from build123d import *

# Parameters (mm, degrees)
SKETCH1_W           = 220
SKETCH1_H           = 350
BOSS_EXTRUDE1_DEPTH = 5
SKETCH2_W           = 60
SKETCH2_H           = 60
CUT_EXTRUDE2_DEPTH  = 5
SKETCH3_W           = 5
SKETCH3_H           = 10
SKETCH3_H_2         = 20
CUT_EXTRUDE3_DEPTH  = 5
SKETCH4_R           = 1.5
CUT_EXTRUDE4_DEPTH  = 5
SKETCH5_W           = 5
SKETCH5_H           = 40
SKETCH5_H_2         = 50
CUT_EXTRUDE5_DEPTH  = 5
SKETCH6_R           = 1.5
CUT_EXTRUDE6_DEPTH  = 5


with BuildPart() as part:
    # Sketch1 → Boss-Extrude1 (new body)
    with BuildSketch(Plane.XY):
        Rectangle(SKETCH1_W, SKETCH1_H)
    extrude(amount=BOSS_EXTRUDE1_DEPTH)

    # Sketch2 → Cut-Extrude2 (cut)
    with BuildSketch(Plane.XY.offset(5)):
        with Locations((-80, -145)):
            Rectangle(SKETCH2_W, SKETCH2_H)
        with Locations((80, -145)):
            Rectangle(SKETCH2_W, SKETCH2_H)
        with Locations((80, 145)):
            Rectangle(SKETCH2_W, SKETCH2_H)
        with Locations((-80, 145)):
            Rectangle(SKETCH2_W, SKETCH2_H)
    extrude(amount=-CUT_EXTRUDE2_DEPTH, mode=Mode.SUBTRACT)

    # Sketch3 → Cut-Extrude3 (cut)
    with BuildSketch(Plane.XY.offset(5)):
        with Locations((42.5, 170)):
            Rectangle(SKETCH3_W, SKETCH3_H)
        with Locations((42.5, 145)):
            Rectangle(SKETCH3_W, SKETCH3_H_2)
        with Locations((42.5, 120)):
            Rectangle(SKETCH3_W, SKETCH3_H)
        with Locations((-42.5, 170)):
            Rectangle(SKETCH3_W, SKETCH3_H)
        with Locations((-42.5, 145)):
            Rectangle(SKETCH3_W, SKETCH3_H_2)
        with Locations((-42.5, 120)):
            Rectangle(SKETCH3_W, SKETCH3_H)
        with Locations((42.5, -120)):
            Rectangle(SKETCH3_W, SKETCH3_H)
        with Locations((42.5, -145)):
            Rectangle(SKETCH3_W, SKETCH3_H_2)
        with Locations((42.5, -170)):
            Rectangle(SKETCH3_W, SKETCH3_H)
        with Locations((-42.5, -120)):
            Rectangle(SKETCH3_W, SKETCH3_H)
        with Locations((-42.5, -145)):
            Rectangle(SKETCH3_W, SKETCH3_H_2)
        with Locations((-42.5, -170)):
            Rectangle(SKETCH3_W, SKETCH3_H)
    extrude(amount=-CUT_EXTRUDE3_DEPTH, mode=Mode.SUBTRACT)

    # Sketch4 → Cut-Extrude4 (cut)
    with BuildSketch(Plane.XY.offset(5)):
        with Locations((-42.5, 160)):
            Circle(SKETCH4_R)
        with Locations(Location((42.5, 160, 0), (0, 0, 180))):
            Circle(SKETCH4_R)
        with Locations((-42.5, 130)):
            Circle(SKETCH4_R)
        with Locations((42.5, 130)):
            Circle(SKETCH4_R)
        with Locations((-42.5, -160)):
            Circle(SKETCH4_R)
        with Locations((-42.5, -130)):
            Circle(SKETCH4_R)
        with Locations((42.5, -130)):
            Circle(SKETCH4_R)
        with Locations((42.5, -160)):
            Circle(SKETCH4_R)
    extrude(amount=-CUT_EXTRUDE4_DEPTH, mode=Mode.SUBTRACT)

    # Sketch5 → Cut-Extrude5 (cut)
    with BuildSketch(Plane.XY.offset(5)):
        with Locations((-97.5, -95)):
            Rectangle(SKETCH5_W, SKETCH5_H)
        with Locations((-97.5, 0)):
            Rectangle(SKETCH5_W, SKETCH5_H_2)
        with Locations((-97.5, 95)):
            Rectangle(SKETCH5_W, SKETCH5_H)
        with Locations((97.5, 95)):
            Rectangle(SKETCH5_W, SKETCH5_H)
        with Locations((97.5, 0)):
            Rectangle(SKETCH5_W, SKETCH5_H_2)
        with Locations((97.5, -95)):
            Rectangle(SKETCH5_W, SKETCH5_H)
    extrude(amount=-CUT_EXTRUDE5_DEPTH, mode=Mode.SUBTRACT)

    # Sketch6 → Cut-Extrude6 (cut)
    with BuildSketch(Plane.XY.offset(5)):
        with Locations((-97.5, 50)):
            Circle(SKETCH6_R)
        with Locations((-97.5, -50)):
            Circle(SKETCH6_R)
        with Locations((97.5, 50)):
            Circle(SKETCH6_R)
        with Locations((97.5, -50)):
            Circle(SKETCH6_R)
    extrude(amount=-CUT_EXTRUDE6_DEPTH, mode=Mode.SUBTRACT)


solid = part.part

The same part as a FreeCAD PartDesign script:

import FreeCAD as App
import Part
import Sketcher

V = App.Vector
Q = App.Units.Quantity


def add_polygon(sketch, points):
    """Adds a closed chain of lines whose ends are joined by coincident constraints."""
    first, n = sketch.GeometryCount, len(points)
    for a, b in zip(points, points[1:] + points[:1]):
        sketch.addGeometry(Part.LineSegment(App.Vector(*a, 0), App.Vector(*b, 0)), False)
    for i in range(n):
        sketch.addConstraint(Sketcher.Constraint("Coincident", first + i, 2, first + (i + 1) % n, 1))

doc = App.newDocument("Part")
body = doc.addObject("PartDesign::Body", "Body")

# Sketch on XY plane
sketch1 = body.newObject("Sketcher::SketchObject", "Sketch")
sketch1.AttachmentSupport = (doc.getObject("XY_Plane"), [""])
sketch1.MapMode = "FlatFace"
add_polygon(sketch1, [(-110, 175), (-110, -175), (110, -175), (110, 175)])  # lines 0-3
sketch1.addConstraint([
    Sketcher.Constraint("Vertical", 0),
    Sketcher.Constraint("Horizontal", 1),
    Sketcher.Constraint("Vertical", 2),
    Sketcher.Constraint("Horizontal", 3),
    Sketcher.Constraint("Symmetric", 0, 2, 2, 2, -1, 1),
    Sketcher.Constraint("DistanceX", 1, 1, 1, 2, Q("220 mm")),
    Sketcher.Constraint("DistanceY", 0, 2, 0, 1, Q("350 mm")),
])
pad1 = body.newObject("PartDesign::Pad", "Pad")
pad1.Profile = sketch1
pad1.Length = 5

# Sketch on XY plane
sketch2 = body.newObject("Sketcher::SketchObject", "Sketch001")
sketch2.AttachmentSupport = (doc.getObject("XY_Plane"), [""])
sketch2.MapMode = "FlatFace"
sketch2.AttachmentOffset = App.Placement(V(0, 0, 5), App.Rotation())
add_polygon(sketch2, [(-110, -115), (-110, -175), (-50, -175), (-50, -115)])  # lines 0-3
add_polygon(sketch2, [(50, -115), (50, -175), (110, -175), (110, -115)])  # lines 4-7
add_polygon(sketch2, [(50, 175), (50, 115), (110, 115), (110, 175)])  # lines 8-11
add_polygon(sketch2, [(-110, 175), (-110, 115), (-50, 115), (-50, 175)])  # lines 12-15
sketch2.addConstraint([
    Sketcher.Constraint("Vertical", 0),
    Sketcher.Constraint("Horizontal", 1),
    Sketcher.Constraint("Vertical", 2),
    Sketcher.Constraint("Horizontal", 3),
    Sketcher.Constraint("Vertical", 4),
    Sketcher.Constraint("Horizontal", 5),
    Sketcher.Constraint("Vertical", 6),
    Sketcher.Constraint("Horizontal", 7),
    Sketcher.Constraint("Vertical", 8),
    Sketcher.Constraint("Horizontal", 9),
    Sketcher.Constraint("Vertical", 10),
    Sketcher.Constraint("Horizontal", 11),
    Sketcher.Constraint("Vertical", 12),
    Sketcher.Constraint("Horizontal", 13),
    Sketcher.Constraint("Vertical", 14),
    Sketcher.Constraint("Horizontal", 15),
    Sketcher.Constraint("Symmetric", 2, 2, 8, 2, -1, 1),
    Sketcher.Constraint("Symmetric", 0, 2, 10, 2, -1, 1),
    Sketcher.Constraint("Symmetric", 6, 2, 12, 2, -1, 1),
    Sketcher.Constraint("Symmetric", 4, 2, 14, 2, -1, 1),
    Sketcher.Constraint("Symmetric", 1, 2, 4, 2, -2),
    Sketcher.Constraint("Symmetric", 3, 2, 6, 2, -2),
    Sketcher.Constraint("Equal", 15, 0),
    Sketcher.Constraint("DistanceX", 1, 1, 1, 2, Q("60 mm")),
    Sketcher.Constraint("DistanceX", 0, 2, -1, 1, Q("110 mm")),
    Sketcher.Constraint("DistanceY", 0, 2, -1, 1, Q("175 mm")),
])
pocket1 = body.newObject("PartDesign::Pocket", "Pocket")
pocket1.Profile = sketch2
pocket1.Length = 5

# Sketch on XY plane
sketch3 = body.newObject("Sketcher::SketchObject", "Sketch002")
sketch3.AttachmentSupport = (doc.getObject("XY_Plane"), [""])
sketch3.MapMode = "FlatFace"
sketch3.AttachmentOffset = App.Placement(V(0, 0, 5), App.Rotation())
add_polygon(sketch3, [(40, 175), (40, 165), (45, 165), (45, 175)])  # lines 0-3
add_polygon(sketch3, [(40, 155), (40, 135), (45, 135), (45, 155)])  # lines 4-7
add_polygon(sketch3, [(40, 125), (40, 115), (45, 115), (45, 125)])  # lines 8-11
add_polygon(sketch3, [(-45, 175), (-45, 165), (-40, 165), (-40, 175)])  # lines 12-15
add_polygon(sketch3, [(-45, 155), (-45, 135), (-40, 135), (-40, 155)])  # lines 16-19
add_polygon(sketch3, [(-45, 125), (-45, 115), (-40, 115), (-40, 125)])  # lines 20-23
add_polygon(sketch3, [(40, -115), (40, -125), (45, -125), (45, -115)])  # lines 24-27
add_polygon(sketch3, [(40, -135), (40, -155), (45, -155), (45, -135)])  # lines 28-31
add_polygon(sketch3, [(40, -165), (40, -175), (45, -175), (45, -165)])  # lines 32-35
add_polygon(sketch3, [(-45, -115), (-45, -125), (-40, -125), (-40, -115)])  # lines 36-39
add_polygon(sketch3, [(-45, -135), (-45, -155), (-40, -155), (-40, -135)])  # lines 40-43
add_polygon(sketch3, [(-45, -165), (-45, -175), (-40, -175), (-40, -165)])  # lines 44-47
sketch3.addConstraint([
    Sketcher.Constraint("Vertical", 0),
    Sketcher.Constraint("Horizontal", 1),
    Sketcher.Constraint("Vertical", 2),
    Sketcher.Constraint("Horizontal", 3),
    Sketcher.Constraint("Vertical", 4),
    Sketcher.Constraint("Horizontal", 5),
    Sketcher.Constraint("Vertical", 6),
    Sketcher.Constraint("Horizontal", 7),
    Sketcher.Constraint("Vertical", 8),
    Sketcher.Constraint("Horizontal", 9),
    Sketcher.Constraint("Vertical", 10),
    Sketcher.Constraint("Horizontal", 11),
    Sketcher.Constraint("Vertical", 12),
    Sketcher.Constraint("Horizontal", 13),
    Sketcher.Constraint("Vertical", 14),
    Sketcher.Constraint("Horizontal", 15),
    Sketcher.Constraint("Vertical", 16),
    Sketcher.Constraint("Horizontal", 17),
    Sketcher.Constraint("Vertical", 18),
    Sketcher.Constraint("Horizontal", 19),
    Sketcher.Constraint("Vertical", 20),
    Sketcher.Constraint("Horizontal", 21),
    Sketcher.Constraint("Vertical", 22),
    Sketcher.Constraint("Horizontal", 23),
    Sketcher.Constraint("Vertical", 24),
    Sketcher.Constraint("Horizontal", 25),
    Sketcher.Constraint("Vertical", 26),
    Sketcher.Constraint("Horizontal", 27),
    Sketcher.Constraint("Vertical", 28),
    Sketcher.Constraint("Horizontal", 29),
    Sketcher.Constraint("Vertical", 30),
    Sketcher.Constraint("Horizontal", 31),
    Sketcher.Constraint("Vertical", 32),
    Sketcher.Constraint("Horizontal", 33),
    Sketcher.Constraint("Vertical", 34),
    Sketcher.Constraint("Horizontal", 35),
    Sketcher.Constraint("Vertical", 36),
    Sketcher.Constraint("Horizontal", 37),
    Sketcher.Constraint("Vertical", 38),
    Sketcher.Constraint("Horizontal", 39),
    Sketcher.Constraint("Vertical", 40),
    Sketcher.Constraint("Horizontal", 41),
    Sketcher.Constraint("Vertical", 42),
    Sketcher.Constraint("Horizontal", 43),
    Sketcher.Constraint("Vertical", 44),
    Sketcher.Constraint("Horizontal", 45),
    Sketcher.Constraint("Vertical", 46),
    Sketcher.Constraint("Horizontal", 47),
    Sketcher.Constraint("Symmetric", 22, 2, 24, 2, -1, 1),
    Sketcher.Constraint("Symmetric", 20, 2, 26, 2, -1, 1),
    Sketcher.Constraint("Symmetric", 18, 2, 28, 2, -1, 1),
    Sketcher.Constraint("Symmetric", 16, 2, 30, 2, -1, 1),
    Sketcher.Constraint("Symmetric", 14, 2, 32, 2, -1, 1),
    Sketcher.Constraint("Symmetric", 12, 2, 34, 2, -1, 1),
    Sketcher.Constraint("Symmetric", 10, 2, 36, 2, -1, 1),
    Sketcher.Constraint("Symmetric", 8, 2, 38, 2, -1, 1),
    Sketcher.Constraint("Symmetric", 6, 2, 40, 2, -1, 1),
    Sketcher.Constraint("Symmetric", 4, 2, 42, 2, -1, 1),
    Sketcher.Constraint("Symmetric", 2, 2, 44, 2, -1, 1),
    Sketcher.Constraint("Symmetric", 0, 2, 46, 2, -1, 1),
    Sketcher.Constraint("Symmetric", 1, 2, 12, 2, -2),
    Sketcher.Constraint("Symmetric", 3, 2, 14, 2, -2),
    Sketcher.Constraint("Symmetric", 5, 2, 16, 2, -2),
    Sketcher.Constraint("Symmetric", 7, 2, 18, 2, -2),
    Sketcher.Constraint("Symmetric", 9, 2, 20, 2, -2),
    Sketcher.Constraint("Symmetric", 11, 2, 22, 2, -2),
    Sketcher.Constraint("Vertical", 3, 2, 4, 2),
    Sketcher.Constraint("Vertical", 2, 2, 5, 2),
    Sketcher.Constraint("Vertical", 7, 2, 8, 2),
    Sketcher.Constraint("Vertical", 6, 2, 9, 2),
    Sketcher.Constraint("Equal", 2, 8),
    Sketcher.Constraint("DistanceX", 1, 1, 1, 2, Q("5 mm")),
    Sketcher.Constraint("DistanceY", 0, 2, 0, 1, Q("10 mm")),
    Sketcher.Constraint("DistanceY", 4, 2, 4, 1, Q("20 mm")),
    Sketcher.Constraint("DistanceX", -1, 1, 0, 2, Q("40 mm")),
    Sketcher.Constraint("DistanceY", -1, 1, 0, 2, Q("165 mm")),
    Sketcher.Constraint("DistanceY", -1, 1, 4, 2, Q("135 mm")),
    Sketcher.Constraint("DistanceY", -1, 1, 8, 2, Q("115 mm")),
])
pocket2 = body.newObject("PartDesign::Pocket", "Pocket001")
pocket2.Profile = sketch3
pocket2.Length = 5

# Sketch on XY plane
sketch4 = body.newObject("Sketcher::SketchObject", "Sketch003")
sketch4.AttachmentSupport = (doc.getObject("XY_Plane"), [""])
sketch4.MapMode = "FlatFace"
sketch4.AttachmentOffset = App.Placement(V(0, 0, 5), App.Rotation())
sketch4.addGeometry([
    Part.Circle(V(-42.5, 160, 0), V(0, 0, 1), 1.5),  # 0
    Part.Circle(V(42.5, 160, 0), V(0, 0, 1), 1.5),  # 1
    Part.Circle(V(-42.5, 130, 0), V(0, 0, 1), 1.5),  # 2
    Part.Circle(V(42.5, 130, 0), V(0, 0, 1), 1.5),  # 3
    Part.Circle(V(-42.5, -160, 0), V(0, 0, 1), 1.5),  # 4
    Part.Circle(V(-42.5, -130, 0), V(0, 0, 1), 1.5),  # 5
    Part.Circle(V(42.5, -130, 0), V(0, 0, 1), 1.5),  # 6
    Part.Circle(V(42.5, -160, 0), V(0, 0, 1), 1.5),  # 7
], False)
sketch4.addConstraint([
    Sketcher.Constraint("Equal", 0, 1),
    Sketcher.Constraint("Equal", 1, 2),
    Sketcher.Constraint("Equal", 2, 3),
    Sketcher.Constraint("Equal", 3, 4),
    Sketcher.Constraint("Equal", 4, 5),
    Sketcher.Constraint("Equal", 5, 6),
    Sketcher.Constraint("Equal", 6, 7),
    Sketcher.Constraint("Symmetric", 1, 3, 4, 3, -1, 1),
    Sketcher.Constraint("Symmetric", 3, 3, 5, 3, -1, 1),
    Sketcher.Constraint("Symmetric", 2, 3, 6, 3, -1, 1),
    Sketcher.Constraint("Symmetric", 0, 3, 7, 3, -1, 1),
    Sketcher.Constraint("Symmetric", 0, 3, 1, 3, -2),
    Sketcher.Constraint("Symmetric", 2, 3, 3, 3, -2),
    Sketcher.Constraint("Vertical", 0, 3, 2, 3),
    Sketcher.Constraint("Diameter", 0, Q("3 mm")),
    Sketcher.Constraint("DistanceY", -1, 1, 0, 3, Q("160 mm")),
    Sketcher.Constraint("DistanceY", -1, 1, 2, 3, Q("130 mm")),
    Sketcher.Constraint("DistanceX", 0, 3, 1, 3, Q("85 mm")),
])
pocket3 = body.newObject("PartDesign::Pocket", "Pocket002")
pocket3.Profile = sketch4
pocket3.Length = 5

# Sketch on XY plane
sketch5 = body.newObject("Sketcher::SketchObject", "Sketch004")
sketch5.AttachmentSupport = (doc.getObject("XY_Plane"), [""])
sketch5.MapMode = "FlatFace"
sketch5.AttachmentOffset = App.Placement(V(0, 0, 5), App.Rotation())
add_polygon(sketch5, [(-100, -75), (-100, -115), (-95, -115), (-95, -75)])  # lines 0-3
add_polygon(sketch5, [(-100, 25), (-100, -25), (-95, -25), (-95, 25)])  # lines 4-7
add_polygon(sketch5, [(-100, 115), (-100, 75), (-95, 75), (-95, 115)])  # lines 8-11
add_polygon(sketch5, [(95, 115), (95, 75), (100, 75), (100, 115)])  # lines 12-15
add_polygon(sketch5, [(95, 25), (95, -25), (100, -25), (100, 25)])  # lines 16-19
add_polygon(sketch5, [(95, -75), (95, -115), (100, -115), (100, -75)])  # lines 20-23
sketch5.addConstraint([
    Sketcher.Constraint("Vertical", 0),
    Sketcher.Constraint("Horizontal", 1),
    Sketcher.Constraint("Vertical", 2),
    Sketcher.Constraint("Horizontal", 3),
    Sketcher.Constraint("Vertical", 4),
    Sketcher.Constraint("Horizontal", 5),
    Sketcher.Constraint("Vertical", 6),
    Sketcher.Constraint("Horizontal", 7),
    Sketcher.Constraint("Vertical", 8),
    Sketcher.Constraint("Horizontal", 9),
    Sketcher.Constraint("Vertical", 10),
    Sketcher.Constraint("Horizontal", 11),
    Sketcher.Constraint("Vertical", 12),
    Sketcher.Constraint("Horizontal", 13),
    Sketcher.Constraint("Vertical", 14),
    Sketcher.Constraint("Horizontal", 15),
    Sketcher.Constraint("Vertical", 16),
    Sketcher.Constraint("Horizontal", 17),
    Sketcher.Constraint("Vertical", 18),
    Sketcher.Constraint("Horizontal", 19),
    Sketcher.Constraint("Vertical", 20),
    Sketcher.Constraint("Horizontal", 21),
    Sketcher.Constraint("Vertical", 22),
    Sketcher.Constraint("Horizontal", 23),
    Sketcher.Constraint("Symmetric", 2, 2, 12, 2, -1, 1),
    Sketcher.Constraint("Symmetric", 0, 2, 14, 2, -1, 1),
    Sketcher.Constraint("Symmetric", 6, 2, 16, 2, -1, 1),
    Sketcher.Constraint("Symmetric", 4, 2, 18, 2, -1, 1),
    Sketcher.Constraint("Symmetric", 10, 2, 20, 2, -1, 1),
    Sketcher.Constraint("Symmetric", 8, 2, 22, 2, -1, 1),
    Sketcher.Constraint("Symmetric", 9, 2, 12, 2, -2),
    Sketcher.Constraint("Symmetric", 11, 2, 14, 2, -2),
    Sketcher.Constraint("Horizontal", 5, 2, 16, 2),
    Sketcher.Constraint("Vertical", 3, 2, 4, 2),
    Sketcher.Constraint("Vertical", 2, 2, 5, 2),
    Sketcher.Constraint("DistanceX", 1, 1, 1, 2, Q("5 mm")),
    Sketcher.Constraint("DistanceY", 0, 2, 0, 1, Q("40 mm")),
    Sketcher.Constraint("DistanceY", 4, 2, 4, 1, Q("50 mm")),
    Sketcher.Constraint("DistanceX", 0, 2, -1, 1, Q("100 mm")),
    Sketcher.Constraint("DistanceY", 0, 2, -1, 1, Q("115 mm")),
])
pocket4 = body.newObject("PartDesign::Pocket", "Pocket003")
pocket4.Profile = sketch5
pocket4.Length = 5

# Sketch on XY plane
sketch6 = body.newObject("Sketcher::SketchObject", "Sketch005")
sketch6.AttachmentSupport = (doc.getObject("XY_Plane"), [""])
sketch6.MapMode = "FlatFace"
sketch6.AttachmentOffset = App.Placement(V(0, 0, 5), App.Rotation())
sketch6.addGeometry([
    Part.Circle(V(-97.5, 50, 0), V(0, 0, 1), 1.5),
    Part.Circle(V(-97.5, -50, 0), V(0, 0, 1), 1.5),
    Part.Circle(V(97.5, 50, 0), V(0, 0, 1), 1.5),
    Part.Circle(V(97.5, -50, 0), V(0, 0, 1), 1.5),
], False)
sketch6.addConstraint([
    Sketcher.Constraint("Equal", 0, 1),
    Sketcher.Constraint("Equal", 1, 2),
    Sketcher.Constraint("Equal", 2, 3),
    Sketcher.Constraint("Symmetric", 1, 3, 2, 3, -1, 1),
    Sketcher.Constraint("Symmetric", 0, 3, 3, 3, -1, 1),
    Sketcher.Constraint("Symmetric", 0, 3, 2, 3, -2),
    Sketcher.Constraint("Diameter", 0, Q("3 mm")),
    Sketcher.Constraint("DistanceY", -1, 1, 0, 3, Q("50 mm")),
    Sketcher.Constraint("DistanceX", 0, 3, 2, 3, Q("195 mm")),
])
pocket5 = body.newObject("PartDesign::Pocket", "Pocket004")
pocket5.Profile = sketch6
pocket5.Length = 5

doc.recompute()
